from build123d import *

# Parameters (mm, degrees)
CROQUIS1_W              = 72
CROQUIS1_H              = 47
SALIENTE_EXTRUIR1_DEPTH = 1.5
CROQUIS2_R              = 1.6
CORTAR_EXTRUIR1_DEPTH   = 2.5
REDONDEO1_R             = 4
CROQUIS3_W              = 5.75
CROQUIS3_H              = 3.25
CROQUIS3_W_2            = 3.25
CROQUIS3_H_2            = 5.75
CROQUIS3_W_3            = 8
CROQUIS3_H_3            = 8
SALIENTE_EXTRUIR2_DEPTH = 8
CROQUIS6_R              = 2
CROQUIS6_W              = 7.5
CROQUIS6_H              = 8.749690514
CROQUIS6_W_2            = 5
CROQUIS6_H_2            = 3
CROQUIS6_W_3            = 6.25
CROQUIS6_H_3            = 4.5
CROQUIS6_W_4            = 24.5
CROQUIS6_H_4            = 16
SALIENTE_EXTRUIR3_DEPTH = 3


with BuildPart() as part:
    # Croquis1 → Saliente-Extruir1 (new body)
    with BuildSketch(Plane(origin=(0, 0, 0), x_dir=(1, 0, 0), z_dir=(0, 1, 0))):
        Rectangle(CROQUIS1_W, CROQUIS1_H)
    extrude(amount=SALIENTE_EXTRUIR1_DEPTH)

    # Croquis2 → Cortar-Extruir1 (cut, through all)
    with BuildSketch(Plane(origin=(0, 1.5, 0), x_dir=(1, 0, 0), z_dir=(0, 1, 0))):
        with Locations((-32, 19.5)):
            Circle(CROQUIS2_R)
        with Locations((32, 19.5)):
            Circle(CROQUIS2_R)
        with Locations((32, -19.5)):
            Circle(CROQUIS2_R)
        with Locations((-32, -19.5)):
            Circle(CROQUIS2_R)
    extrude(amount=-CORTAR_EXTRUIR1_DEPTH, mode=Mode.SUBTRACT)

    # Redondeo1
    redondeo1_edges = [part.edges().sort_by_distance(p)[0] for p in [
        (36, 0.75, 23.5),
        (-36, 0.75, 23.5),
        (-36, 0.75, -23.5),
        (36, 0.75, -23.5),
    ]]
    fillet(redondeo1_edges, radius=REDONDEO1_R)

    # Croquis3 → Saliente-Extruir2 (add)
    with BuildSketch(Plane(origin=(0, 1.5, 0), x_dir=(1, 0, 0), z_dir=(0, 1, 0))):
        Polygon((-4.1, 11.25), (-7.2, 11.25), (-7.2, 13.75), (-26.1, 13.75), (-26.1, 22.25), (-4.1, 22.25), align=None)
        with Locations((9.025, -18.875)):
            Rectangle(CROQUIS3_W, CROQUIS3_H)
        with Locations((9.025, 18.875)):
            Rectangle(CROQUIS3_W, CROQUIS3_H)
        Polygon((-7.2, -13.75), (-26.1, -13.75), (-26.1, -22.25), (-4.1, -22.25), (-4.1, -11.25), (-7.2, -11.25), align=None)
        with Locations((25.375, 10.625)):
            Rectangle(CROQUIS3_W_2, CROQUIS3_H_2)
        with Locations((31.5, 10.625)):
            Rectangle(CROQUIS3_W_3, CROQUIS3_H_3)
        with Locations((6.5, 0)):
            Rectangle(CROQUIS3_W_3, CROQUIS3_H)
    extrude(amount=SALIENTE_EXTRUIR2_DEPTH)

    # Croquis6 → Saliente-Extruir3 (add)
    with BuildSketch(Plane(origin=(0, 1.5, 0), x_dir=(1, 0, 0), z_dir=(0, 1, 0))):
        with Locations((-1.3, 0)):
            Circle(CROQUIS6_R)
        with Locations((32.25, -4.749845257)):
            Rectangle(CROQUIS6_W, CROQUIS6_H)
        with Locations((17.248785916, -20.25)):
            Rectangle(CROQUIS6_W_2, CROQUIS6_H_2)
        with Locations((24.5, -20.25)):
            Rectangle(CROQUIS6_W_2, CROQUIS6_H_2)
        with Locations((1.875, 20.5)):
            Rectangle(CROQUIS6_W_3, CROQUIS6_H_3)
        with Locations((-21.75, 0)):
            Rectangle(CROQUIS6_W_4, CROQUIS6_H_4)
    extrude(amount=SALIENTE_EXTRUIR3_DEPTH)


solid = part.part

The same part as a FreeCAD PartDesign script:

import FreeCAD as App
import Part
import Sketcher

V = App.Vector


def edges_at(feature, points):
    """Names of the edges that pass closest to the given points."""
    edges = feature.Shape.Edges
    near = lambda p: min(range(len(edges)), key=lambda i: edges[i].distToShape(Part.Vertex(*p))[0])
    return sorted({f"Edge{near(p) + 1}" for p in points})

doc = App.newDocument("Part")
params = doc.addObject("Spreadsheet::Sheet", "Params")
for row, (alias, value) in enumerate([
    ("sketch1_width", "72 mm"),
    ("sketch1_height", "47 mm"),
    ("pad1_length", "1.5 mm"),
    ("sketch2_diameter", "3.2 mm"),
    ("fillet_radius", "4 mm"),
    ("sketch3_width", "22 mm"),
    ("sketch3_width2", "8 mm"),
    ("sketch3_height", "11 mm"),
    ("sketch3_width3", "3.1 mm"),
    ("sketch3_height2", "8.5 mm"),
    ("pad2_length", "8 mm"),
    ("sketch4_diameter", "4 mm"),
    ("sketch4_width", "5 mm"),
    ("sketch4_height", "3 mm"),
    ("sketch4_height2", "16 mm"),
    ("sketch4_width2", "7.5 mm"),
    ("pad3_length", "3 mm"),
], start=1):
    params.set(f"A{row}", alias)
    params.set(f"B{row}", "=" + value)
    params.setAlias(f"B{row}", alias)

body = doc.addObject("PartDesign::Body", "Body")

sketch1 = body.newObject("Sketcher::SketchObject", "Sketch")
sketch1.AttachmentSupport = (doc.getObject("XZ_Plane"), [""])
sketch1.MapMode = "FlatFace"
sketch1.addGeometry([
    Part.LineSegment(V(-36, -24, 0), V(-36, 24, 0)),
    Part.LineSegment(V(-36, 24, 0), V(36, 24, 0)),
    Part.LineSegment(V(36, 24, 0), V(36, -24, 0)),
    Part.LineSegment(V(36, -24, 0), V(-36, -24, 0)),
], False)
sketch1.addConstraint([
    Sketcher.Constraint("Coincident", 0, 2, 1, 1),
    Sketcher.Constraint("Coincident", 1, 2, 2, 1),
    Sketcher.Constraint("Coincident", 2, 2, 3, 1),
    Sketcher.Constraint("Coincident", 3, 2, 0, 1),
    Sketcher.Constraint("Vertical", 0),
    Sketcher.Constraint("Horizontal", 1),
    Sketcher.Constraint("Vertical", 2),
    Sketcher.Constraint("Horizontal", 3),
    Sketcher.Constraint("Symmetric", 0, 2, 2, 2, -1, 1),
    Sketcher.Constraint("DistanceX", 1, 1, 1, 2, 72.0),
    Sketcher.Constraint("DistanceY", 0, 1, 0, 2, 47.0),
])
sketch1.setExpression("Constraints[9]", "Params.sketch1_width")
sketch1.setExpression("Constraints[10]", "Params.sketch1_height")
pad1 = body.newObject("PartDesign::Pad", "Pad")
pad1.Profile = sketch1
pad1.setExpression("Length", "Params.pad1_length")
pad1.Reversed = True

sketch2 = body.newObject("Sketcher::SketchObject", "Sketch001")
sketch2.AttachmentSupport = (doc.getObject("XZ_Plane"), [""])
sketch2.MapMode = "FlatFace"
sketch2.AttachmentOffset = App.Placement(V(0, 0, -1.5), App.Rotation())
sketch2.addGeometry([
    Part.Circle(V(-32, -19.5, 0), V(0, 0, 1), 1.6),
    Part.Circle(V(32, -19.5, 0), V(0, 0, 1), 1.6),
    Part.Circle(V(32, 19.5, 0), V(0, 0, 1), 1.6),
    Part.Circle(V(-32, 19.5, 0), V(0, 0, 1), 1.6),
], False)
sketch2.addConstraint([
    Sketcher.Constraint("Equal", 0, 1),
    Sketcher.Constraint("Equal", 1, 2),
    Sketcher.Constraint("Equal", 2, 3),
    Sketcher.Constraint("Symmetric", 0, 3, 2, 3, -1, 1),
    Sketcher.Constraint("Symmetric", 1, 3, 3, 3, -1, 1),
    Sketcher.Constraint("Symmetric", 0, 3, 1, 3, -2),
    Sketcher.Constraint("Diameter", 0, 3.2),
    Sketcher.Constraint("DistanceX", 0, 3, -1, 1, 32.0),
    Sketcher.Constraint("DistanceY", 1, 3, 2, 3, 39.0),
])
sketch2.setExpression("Constraints[6]", "Params.sketch2_diameter")
pocket1 = body.newObject("PartDesign::Pocket", "Pocket")
pocket1.Profile = sketch2
pocket1.Type = "ThroughAll"
pocket1.Reversed = True
doc.recompute()

fillet = body.newObject("PartDesign::Fillet", "Fillet")
fillet.Base = (pocket1, edges_at(pocket1, [
    (36, 0.75, 23.5),
    (-36, 0.75, 23.5),
    (-36, 0.75, -23.5),
    (36, 0.75, -23.5),
]))
fillet.setExpression("Radius", "Params.fillet_radius")

sketch3 = body.newObject("Sketcher::SketchObject", "Sketch002")
sketch3.AttachmentSupport = (doc.getObject("XZ_Plane"), [""])
sketch3.MapMode = "FlatFace"
sketch3.AttachmentOffset = App.Placement(V(0, 0, -1.5), App.Rotation())
sketch3.addGeometry([
    Part.LineSegment(V(-7.2, -11.2, 0), V(-4.1, -11.2, 0)),
    Part.LineSegment(V(-4.1, -11.2, 0), V(-4.1, -22.2, 0)),
    Part.LineSegment(V(-4.1, -22.2, 0), V(-26.1, -22.2, 0)),
    Part.LineSegment(V(-26.1, -22.2, 0), V(-26.1, -13.8, 0)),
    Part.LineSegment(V(-26.1, -13.8, 0), V(-7.2, -13.8, 0)),
    Part.LineSegment(V(-7.2, -13.8, 0), V(-7.2, -11.2, 0)),
    Part.LineSegment(V(6.2, 17.2, 0), V(6.2, 20.5, 0)),
    Part.LineSegment(V(6.2, 20.5, 0), V(11.9, 20.5, 0)),
    Part.LineSegment(V(11.9, 20.5, 0), V(11.9, 17.2, 0)),
    Part.LineSegment(V(11.9, 17.2, 0), V(6.2, 17.2, 0)),
    Part.LineSegment(V(6.2, -20.5, 0), V(6.2, -17.2, 0)),
    Part.LineSegment(V(6.2, -17.2, 0), V(11.9, -17.2, 0)),
    Part.LineSegment(V(11.9, -17.2, 0), V(11.9, -20.5, 0)),
    Part.LineSegment(V(11.9, -20.5, 0), V(6.2, -20.5, 0)),
    Part.LineSegment(V(-7.2, 13.8, 0), V(-26.1, 13.8, 0)),
    Part.LineSegment(V(-26.1, 13.8, 0), V(-26.1, 22.2, 0)),
    Part.LineSegment(V(-26.1, 22.2, 0), V(-4.1, 22.2, 0)),
    Part.LineSegment(V(-4.1, 22.2, 0), V(-4.1, 11.2, 0)),
    Part.LineSegment(V(-4.1, 11.2, 0), V(-7.2, 11.2, 0)),
    Part.LineSegment(V(-7.2, 11.2, 0), V(-7.2, 13.8, 0)),
    Part.LineSegment(V(23.8, -13.5, 0), V(23.8, -7.8, 0)),
    Part.LineSegment(V(23.8, -7.8, 0), V(27, -7.8, 0)),
    Part.LineSegment(V(27, -7.8, 0), V(27, -13.5, 0)),
    Part.LineSegment(V(27, -13.5, 0), V(23.8, -13.5, 0)),
    Part.LineSegment(V(27.5, -14.6, 0), V(27.5, -6.6, 0)),
    Part.LineSegment(V(27.5, -6.6, 0), V(35.5, -6.6, 0)),
    Part.LineSegment(V(35.5, -6.6, 0), V(35.5, -14.6, 0)),
    Part.LineSegment(V(35.5, -14.6, 0), V(27.5, -14.6, 0)),
    Part.LineSegment(V(2.5, -1.6, 0), V(2.5, 1.6, 0)),
    Part.LineSegment(V(2.5, 1.6, 0), V(10.5, 1.6, 0)),
    Part.LineSegment(V(10.5, 1.6, 0), V(10.5, -1.6, 0)),
    Part.LineSegment(V(10.5, -1.6, 0), V(2.5, -1.6, 0)),
], False)
sketch3.addConstraint([
    Sketcher.Constraint("Coincident", 0, 2, 1, 1),
    Sketcher.Constraint("Coincident", 1, 2, 2, 1),
    Sketcher.Constraint("Coincident", 2, 2, 3, 1),
    Sketcher.Constraint("Coincident", 3, 2, 4, 1),
    Sketcher.Constraint("Coincident", 4, 2, 5, 1),
    Sketcher.Constraint("Coincident", 5, 2, 0, 1),
    Sketcher.Constraint("Coincident", 6, 2, 7, 1),
    Sketcher.Constraint("Coincident", 7, 2, 8, 1),
    Sketcher.Constraint("Coincident", 8, 2, 9, 1),
    Sketcher.Constraint("Coincident", 9, 2, 6, 1),
    Sketcher.Constraint("Coincident", 10, 2, 11, 1),
    Sketcher.Constraint("Coincident", 11, 2, 12, 1),
    Sketcher.Constraint("Coincident", 12, 2, 13, 1),
    Sketcher.Constraint("Coincident", 13, 2, 10, 1),
    Sketcher.Constraint("Coincident", 14, 2, 15, 1),
    Sketcher.Constraint("Coincident", 15, 2, 16, 1),
    Sketcher.Constraint("Coincident", 16, 2, 17, 1),
    Sketcher.Constraint("Coincident", 17, 2, 18, 1),
    Sketcher.Constraint("Coincident", 18, 2, 19, 1),
    Sketcher.Constraint("Coincident", 19, 2, 14, 1),
    Sketcher.Constraint("Coincident", 20, 2, 21, 1),
    Sketcher.Constraint("Coincident", 21, 2, 22, 1),
    Sketcher.Constraint("Coincident", 22, 2, 23, 1),
    Sketcher.Constraint("Coincident", 23, 2, 20, 1),
    Sketcher.Constraint("Coincident", 24, 2, 25, 1),
    Sketcher.Constraint("Coincident", 25, 2, 26, 1),
    Sketcher.Constraint("Coincident", 26, 2, 27, 1),
    Sketcher.Constraint("Coincident", 27, 2, 24, 1),
    Sketcher.Constraint("Coincident", 28, 2, 29, 1),
    Sketcher.Constraint("Coincident", 29, 2, 30, 1),
    Sketcher.Constraint("Coincident", 30, 2, 31, 1),
    Sketcher.Constraint("Coincident", 31, 2, 28, 1),
    Sketcher.Constraint("Horizontal", 0),
    Sketcher.Constraint("Vertical", 1),
    Sketcher.Constraint("Horizontal", 2),
    Sketcher.Constraint("Vertical", 3),
    Sketcher.Constraint("Horizontal", 4),
    Sketcher.Constraint("Vertical", 5),
    Sketcher.Constraint("Vertical", 6),
    Sketcher.Constraint("Horizontal", 7),
    Sketcher.Constraint("Vertical", 8),
    Sketcher.Constraint("Horizontal", 9),
    Sketcher.Constraint("Vertical", 10),
    Sketcher.Constraint("Horizontal", 11),
    Sketcher.Constraint("Vertical", 12),
    Sketcher.Constraint("Horizontal", 13),
    Sketcher.Constraint("Horizontal", 14),
    Sketcher.Constraint("Vertical", 15),
    Sketcher.Constraint("Horizontal", 16),
    Sketcher.Constraint("Vertical", 17),
    Sketcher.Constraint("Horizontal", 18),
    Sketcher.Constraint("Vertical", 19),
    Sketcher.Constraint("Vertical", 20),
    Sketcher.Constraint("Horizontal", 21),
    Sketcher.Constraint("Vertical", 22),
    Sketcher.Constraint("Horizontal", 23),
    Sketcher.Constraint("Vertical", 24),
    Sketcher.Constraint("Horizontal", 25),
    Sketcher.Constraint("Vertical", 26),
    Sketcher.Constraint("Horizontal", 27),
    Sketcher.Constraint("Vertical", 28),
    Sketcher.Constraint("Horizontal", 29),
    Sketcher.Constraint("Vertical", 30),
    Sketcher.Constraint("Horizontal", 31),
    Sketcher.Constraint("Symmetric", 9, 2, 10, 2, -1),
    Sketcher.Constraint("Symmetric", 7, 2, 12, 2, -1),
    Sketcher.Constraint("Symmetric", 3, 2, 14, 2, -1),
    Sketcher.Constraint("Symmetric", 1, 2, 16, 2, -1),
    Sketcher.Constraint("Symmetric", 5, 2, 18, 2, -1),
    Sketcher.Constraint("Equal", 27, 29),
    Sketcher.Constraint("Equal", 23, 6),
    Sketcher.Constraint("Equal", 13, 20),
    Sketcher.Constraint("Equal", 31, 24),
    Sketcher.Constraint("Equal", 12, 28),
    Sketcher.Constraint("DistanceX", 2, 2, 2, 1, 22.0),
    Sketcher.Constraint("DistanceX", 25, 1, 25, 2, 8.0),
    Sketcher.Constraint("DistanceY", 1, 2, 1, 1, 11.0),
    Sketcher.Constraint("DistanceX", 0, 1, 0, 2, 3.1),
    Sketcher.Constraint("DistanceY", 3, 1, 3, 2, 8.5),
    Sketcher.Constraint("DistanceX", -1, 1, 21, 2, 27.0),
    Sketcher.Constraint("DistanceX", 0, 2, 7, 2, 16.0),
    Sketcher.Constraint("DistanceY", 4, 2, 8, 2, 31.0),
    Sketcher.Constraint("DistanceY", 1, 2, 10, 2, 5.0),
    Sketcher.Constraint("DistanceY", 20, 2, 8, 2, 25.0),
    Sketcher.Constraint("DistanceY", 12, 2, 22, 2, 7.0),
    Sketcher.Constraint("DistanceX", 7, 1, 7, 2, 5.75),
    Sketcher.Constraint("DistanceX", 0, 2, -1, 1, 4.1),
    Sketcher.Constraint("DistanceX", -1, 1, 24, 2, 27.5),
    Sketcher.Constraint("DistanceX", -1, 1, 28, 2, 2.5),
    Sketcher.Constraint("DistanceY", 24, 2, -1, 1, 6.625),
    Sketcher.Constraint("DistanceY", -1, 1, 28, 2, 1.625),
])
sketch3.setExpression("Constraints[74]", "Params.sketch3_width")
sketch3.setExpression("Constraints[75]", "Params.sketch3_width2")
sketch3.setExpression("Constraints[76]", "Params.sketch3_height")
sketch3.setExpression("Constraints[77]", "Params.sketch3_width3")
sketch3.setExpression("Constraints[78]", "Params.sketch3_height2")
pad2 = body.newObject("PartDesign::Pad", "Pad001")
pad2.Profile = sketch3
pad2.setExpression("Length", "Params.pad2_length")
pad2.Reversed = True

sketch4 = body.newObject("Sketcher::SketchObject", "Sketch003")
sketch4.AttachmentSupport = (doc.getObject("XZ_Plane"), [""])
sketch4.MapMode = "FlatFace"
sketch4.AttachmentOffset = App.Placement(V(0, 0, -1.5), App.Rotation())
sketch4.addGeometry([
    Part.Circle(V(-1.3, 0, 0), V(0, 0, 1), 2),
    Part.LineSegment(V(28.5, 0.4, 0), V(28.5, 9.1, 0)),
    Part.LineSegment(V(28.5, 9.1, 0), V(36, 9.1, 0)),
    Part.LineSegment(V(36, 9.1, 0), V(36, 0.4, 0)),
    Part.LineSegment(V(36, 0.4, 0), V(28.5, 0.4, 0)),
    Part.LineSegment(V(14.7, 18.8, 0), V(14.7, 21.8, 0)),
    Part.LineSegment(V(14.7, 21.8, 0), V(19.7, 21.8, 0)),
    Part.LineSegment(V(19.7, 21.8, 0), V(19.7, 18.8, 0)),
    Part.LineSegment(V(19.7, 18.8, 0), V(14.7, 18.8, 0)),
    Part.LineSegment(V(22, 18.8, 0), V(22, 21.8, 0)),
    Part.LineSegment(V(22, 21.8, 0), V(27, 21.8, 0)),
    Part.LineSegment(V(27, 21.8, 0), V(27, 18.8, 0)),
    Part.LineSegment(V(27, 18.8, 0), V(22, 18.8, 0)),
    Part.LineSegment(V(-1.2, -22.8, 0), V(-1.2, -18.2, 0)),
    Part.LineSegment(V(-1.2, -18.2, 0), V(5, -18.2, 0)),
    Part.LineSegment(V(5, -18.2, 0), V(5, -22.8, 0)),
    Part.LineSegment(V(5, -22.8, 0), V(-1.2, -22.8, 0)),
    Part.LineSegment(V(-34, -8, 0), V(-34, 8, 0)),
    Part.LineSegment(V(-34, 8, 0), V(-9.5, 8, 0)),
    Part.LineSegment(V(-9.5, 8, 0), V(-9.5, -8, 0)),
    Part.LineSegment(V(-9.5, -8, 0), V(-34, -8, 0)),
], False)
sketch4.addConstraint([
    Sketcher.Constraint("Coincident", 1, 2, 2, 1),
    Sketcher.Constraint("Coincident", 2, 2, 3, 1),
    Sketcher.Constraint("Coincident", 3, 2, 4, 1),
    Sketcher.Constraint("Coincident", 4, 2, 1, 1),
    Sketcher.Constraint("Coincident", 5, 2, 6, 1),
    Sketcher.Constraint("Coincident", 6, 2, 7, 1),
    Sketcher.Constraint("Coincident", 7, 2, 8, 1),
    Sketcher.Constraint("Coincident", 8, 2, 5, 1),
    Sketcher.Constraint("Coincident", 9, 2, 10, 1),
    Sketcher.Constraint("Coincident", 10, 2, 11, 1),
    Sketcher.Constraint("Coincident", 11, 2, 12, 1),
    Sketcher.Constraint("Coincident", 12, 2, 9, 1),
    Sketcher.Constraint("Coincident", 13, 2, 14, 1),
    Sketcher.Constraint("Coincident", 14, 2, 15, 1),
    Sketcher.Constraint("Coincident", 15, 2, 16, 1),
    Sketcher.Constraint("Coincident", 16, 2, 13, 1),
    Sketcher.Constraint("Coincident", 17, 2, 18, 1),
    Sketcher.Constraint("Coincident", 18, 2, 19, 1),
    Sketcher.Constraint("Coincident", 19, 2, 20, 1),
    Sketcher.Constraint("Coincident", 20, 2, 17, 1),
    Sketcher.Constraint("Vertical", 1),
    Sketcher.Constraint("Horizontal", 2),
    Sketcher.Constraint("Vertical", 3),
    Sketcher.Constraint("Horizontal", 4),
    Sketcher.Constraint("Vertical", 5),
    Sketcher.Constraint("Horizontal", 6),
    Sketcher.Constraint("Vertical", 7),
    Sketcher.Constraint("Horizontal", 8),
    Sketcher.Constraint("Vertical", 9),
    Sketcher.Constraint("Horizontal", 10),
    Sketcher.Constraint("Vertical", 11),
    Sketcher.Constraint("Horizontal", 12),
    Sketcher.Constraint("Vertical", 13),
    Sketcher.Constraint("Horizontal", 14),
    Sketcher.Constraint("Vertical", 15),
    Sketcher.Constraint("Horizontal", 16),
    Sketcher.Constraint("Vertical", 17),
    Sketcher.Constraint("Horizontal", 18),
    Sketcher.Constraint("Vertical", 19),
    Sketcher.Constraint("Horizontal", 20),
    Sketcher.Constraint("PointOnObject", 0, 3, -1),
    Sketcher.Constraint("Horizontal", 6, 2, 9, 2),
    Sketcher.Constraint("Horizontal", 8, 2, 11, 2),
    Sketcher.Constraint("Equal", 8, 10),
    Sketcher.Constraint("Diameter", 0, 4.0),
    Sketcher.Constraint("DistanceX", 6, 1, 6, 2, 5.0),
    Sketcher.Constraint("DistanceY", 5, 1, 5, 2, 3.0),
    Sketcher.Constraint("DistanceY", 17, 1, 17, 2, 16.0),
    Sketcher.Constraint("DistanceX", 2, 1, 2, 2, 7.5),
    Sketcher.Constraint("DistanceX", 18, 1, 18, 2, 24.5),
    Sketcher.Constraint("DistanceY", 13, 1, 13, 2, 4.5),
    Sketcher.Constraint("DistanceX", -1, 1, 2, 2, 36.0),
    Sketcher.Constraint("DistanceX", -1, 1, 9, 2, 22.0),
    Sketcher.Constraint("DistanceX", -1, 1, 14, 2, 5.0),
    Sketcher.Constraint("DistanceX", 17, 2, -1, 1, 34.0),
    Sketcher.Constraint("DistanceY", -1, 1, 17, 2, 8.0),
    Sketcher.Constraint("DistanceY", 13, 2, 8, 2, 37.0),
    Sketcher.Constraint("DistanceX", 14, 1, 14, 2, 6.25),
    Sketcher.Constraint("DistanceX", 0, 3, -1, 1, 1.3),
    Sketcher.Constraint("DistanceY", -1, 1, 5, 2, 21.75),
    Sketcher.Constraint("DistanceY", -1, 1, 3, 2, 0.375),
    Sketcher.Constraint("DistanceY", 1, 1, 1, 2, 8.749691),
    Sketcher.Constraint("DistanceX", -1, 1, 5, 2, 14.748786),
])
sketch4.setExpression("Constraints[44]", "Params.sketch4_diameter")
sketch4.setExpression("Constraints[45]", "Params.sketch4_width")
sketch4.setExpression("Constraints[46]", "Params.sketch4_height")
sketch4.setExpression("Constraints[47]", "Params.sketch4_height2")
sketch4.setExpression("Constraints[48]", "Params.sketch4_width2")
pad3 = body.newObject("PartDesign::Pad", "Pad002")
pad3.Profile = sketch4
pad3.setExpression("Length", "Params.pad3_length")
pad3.Reversed = True

doc.recompute()
